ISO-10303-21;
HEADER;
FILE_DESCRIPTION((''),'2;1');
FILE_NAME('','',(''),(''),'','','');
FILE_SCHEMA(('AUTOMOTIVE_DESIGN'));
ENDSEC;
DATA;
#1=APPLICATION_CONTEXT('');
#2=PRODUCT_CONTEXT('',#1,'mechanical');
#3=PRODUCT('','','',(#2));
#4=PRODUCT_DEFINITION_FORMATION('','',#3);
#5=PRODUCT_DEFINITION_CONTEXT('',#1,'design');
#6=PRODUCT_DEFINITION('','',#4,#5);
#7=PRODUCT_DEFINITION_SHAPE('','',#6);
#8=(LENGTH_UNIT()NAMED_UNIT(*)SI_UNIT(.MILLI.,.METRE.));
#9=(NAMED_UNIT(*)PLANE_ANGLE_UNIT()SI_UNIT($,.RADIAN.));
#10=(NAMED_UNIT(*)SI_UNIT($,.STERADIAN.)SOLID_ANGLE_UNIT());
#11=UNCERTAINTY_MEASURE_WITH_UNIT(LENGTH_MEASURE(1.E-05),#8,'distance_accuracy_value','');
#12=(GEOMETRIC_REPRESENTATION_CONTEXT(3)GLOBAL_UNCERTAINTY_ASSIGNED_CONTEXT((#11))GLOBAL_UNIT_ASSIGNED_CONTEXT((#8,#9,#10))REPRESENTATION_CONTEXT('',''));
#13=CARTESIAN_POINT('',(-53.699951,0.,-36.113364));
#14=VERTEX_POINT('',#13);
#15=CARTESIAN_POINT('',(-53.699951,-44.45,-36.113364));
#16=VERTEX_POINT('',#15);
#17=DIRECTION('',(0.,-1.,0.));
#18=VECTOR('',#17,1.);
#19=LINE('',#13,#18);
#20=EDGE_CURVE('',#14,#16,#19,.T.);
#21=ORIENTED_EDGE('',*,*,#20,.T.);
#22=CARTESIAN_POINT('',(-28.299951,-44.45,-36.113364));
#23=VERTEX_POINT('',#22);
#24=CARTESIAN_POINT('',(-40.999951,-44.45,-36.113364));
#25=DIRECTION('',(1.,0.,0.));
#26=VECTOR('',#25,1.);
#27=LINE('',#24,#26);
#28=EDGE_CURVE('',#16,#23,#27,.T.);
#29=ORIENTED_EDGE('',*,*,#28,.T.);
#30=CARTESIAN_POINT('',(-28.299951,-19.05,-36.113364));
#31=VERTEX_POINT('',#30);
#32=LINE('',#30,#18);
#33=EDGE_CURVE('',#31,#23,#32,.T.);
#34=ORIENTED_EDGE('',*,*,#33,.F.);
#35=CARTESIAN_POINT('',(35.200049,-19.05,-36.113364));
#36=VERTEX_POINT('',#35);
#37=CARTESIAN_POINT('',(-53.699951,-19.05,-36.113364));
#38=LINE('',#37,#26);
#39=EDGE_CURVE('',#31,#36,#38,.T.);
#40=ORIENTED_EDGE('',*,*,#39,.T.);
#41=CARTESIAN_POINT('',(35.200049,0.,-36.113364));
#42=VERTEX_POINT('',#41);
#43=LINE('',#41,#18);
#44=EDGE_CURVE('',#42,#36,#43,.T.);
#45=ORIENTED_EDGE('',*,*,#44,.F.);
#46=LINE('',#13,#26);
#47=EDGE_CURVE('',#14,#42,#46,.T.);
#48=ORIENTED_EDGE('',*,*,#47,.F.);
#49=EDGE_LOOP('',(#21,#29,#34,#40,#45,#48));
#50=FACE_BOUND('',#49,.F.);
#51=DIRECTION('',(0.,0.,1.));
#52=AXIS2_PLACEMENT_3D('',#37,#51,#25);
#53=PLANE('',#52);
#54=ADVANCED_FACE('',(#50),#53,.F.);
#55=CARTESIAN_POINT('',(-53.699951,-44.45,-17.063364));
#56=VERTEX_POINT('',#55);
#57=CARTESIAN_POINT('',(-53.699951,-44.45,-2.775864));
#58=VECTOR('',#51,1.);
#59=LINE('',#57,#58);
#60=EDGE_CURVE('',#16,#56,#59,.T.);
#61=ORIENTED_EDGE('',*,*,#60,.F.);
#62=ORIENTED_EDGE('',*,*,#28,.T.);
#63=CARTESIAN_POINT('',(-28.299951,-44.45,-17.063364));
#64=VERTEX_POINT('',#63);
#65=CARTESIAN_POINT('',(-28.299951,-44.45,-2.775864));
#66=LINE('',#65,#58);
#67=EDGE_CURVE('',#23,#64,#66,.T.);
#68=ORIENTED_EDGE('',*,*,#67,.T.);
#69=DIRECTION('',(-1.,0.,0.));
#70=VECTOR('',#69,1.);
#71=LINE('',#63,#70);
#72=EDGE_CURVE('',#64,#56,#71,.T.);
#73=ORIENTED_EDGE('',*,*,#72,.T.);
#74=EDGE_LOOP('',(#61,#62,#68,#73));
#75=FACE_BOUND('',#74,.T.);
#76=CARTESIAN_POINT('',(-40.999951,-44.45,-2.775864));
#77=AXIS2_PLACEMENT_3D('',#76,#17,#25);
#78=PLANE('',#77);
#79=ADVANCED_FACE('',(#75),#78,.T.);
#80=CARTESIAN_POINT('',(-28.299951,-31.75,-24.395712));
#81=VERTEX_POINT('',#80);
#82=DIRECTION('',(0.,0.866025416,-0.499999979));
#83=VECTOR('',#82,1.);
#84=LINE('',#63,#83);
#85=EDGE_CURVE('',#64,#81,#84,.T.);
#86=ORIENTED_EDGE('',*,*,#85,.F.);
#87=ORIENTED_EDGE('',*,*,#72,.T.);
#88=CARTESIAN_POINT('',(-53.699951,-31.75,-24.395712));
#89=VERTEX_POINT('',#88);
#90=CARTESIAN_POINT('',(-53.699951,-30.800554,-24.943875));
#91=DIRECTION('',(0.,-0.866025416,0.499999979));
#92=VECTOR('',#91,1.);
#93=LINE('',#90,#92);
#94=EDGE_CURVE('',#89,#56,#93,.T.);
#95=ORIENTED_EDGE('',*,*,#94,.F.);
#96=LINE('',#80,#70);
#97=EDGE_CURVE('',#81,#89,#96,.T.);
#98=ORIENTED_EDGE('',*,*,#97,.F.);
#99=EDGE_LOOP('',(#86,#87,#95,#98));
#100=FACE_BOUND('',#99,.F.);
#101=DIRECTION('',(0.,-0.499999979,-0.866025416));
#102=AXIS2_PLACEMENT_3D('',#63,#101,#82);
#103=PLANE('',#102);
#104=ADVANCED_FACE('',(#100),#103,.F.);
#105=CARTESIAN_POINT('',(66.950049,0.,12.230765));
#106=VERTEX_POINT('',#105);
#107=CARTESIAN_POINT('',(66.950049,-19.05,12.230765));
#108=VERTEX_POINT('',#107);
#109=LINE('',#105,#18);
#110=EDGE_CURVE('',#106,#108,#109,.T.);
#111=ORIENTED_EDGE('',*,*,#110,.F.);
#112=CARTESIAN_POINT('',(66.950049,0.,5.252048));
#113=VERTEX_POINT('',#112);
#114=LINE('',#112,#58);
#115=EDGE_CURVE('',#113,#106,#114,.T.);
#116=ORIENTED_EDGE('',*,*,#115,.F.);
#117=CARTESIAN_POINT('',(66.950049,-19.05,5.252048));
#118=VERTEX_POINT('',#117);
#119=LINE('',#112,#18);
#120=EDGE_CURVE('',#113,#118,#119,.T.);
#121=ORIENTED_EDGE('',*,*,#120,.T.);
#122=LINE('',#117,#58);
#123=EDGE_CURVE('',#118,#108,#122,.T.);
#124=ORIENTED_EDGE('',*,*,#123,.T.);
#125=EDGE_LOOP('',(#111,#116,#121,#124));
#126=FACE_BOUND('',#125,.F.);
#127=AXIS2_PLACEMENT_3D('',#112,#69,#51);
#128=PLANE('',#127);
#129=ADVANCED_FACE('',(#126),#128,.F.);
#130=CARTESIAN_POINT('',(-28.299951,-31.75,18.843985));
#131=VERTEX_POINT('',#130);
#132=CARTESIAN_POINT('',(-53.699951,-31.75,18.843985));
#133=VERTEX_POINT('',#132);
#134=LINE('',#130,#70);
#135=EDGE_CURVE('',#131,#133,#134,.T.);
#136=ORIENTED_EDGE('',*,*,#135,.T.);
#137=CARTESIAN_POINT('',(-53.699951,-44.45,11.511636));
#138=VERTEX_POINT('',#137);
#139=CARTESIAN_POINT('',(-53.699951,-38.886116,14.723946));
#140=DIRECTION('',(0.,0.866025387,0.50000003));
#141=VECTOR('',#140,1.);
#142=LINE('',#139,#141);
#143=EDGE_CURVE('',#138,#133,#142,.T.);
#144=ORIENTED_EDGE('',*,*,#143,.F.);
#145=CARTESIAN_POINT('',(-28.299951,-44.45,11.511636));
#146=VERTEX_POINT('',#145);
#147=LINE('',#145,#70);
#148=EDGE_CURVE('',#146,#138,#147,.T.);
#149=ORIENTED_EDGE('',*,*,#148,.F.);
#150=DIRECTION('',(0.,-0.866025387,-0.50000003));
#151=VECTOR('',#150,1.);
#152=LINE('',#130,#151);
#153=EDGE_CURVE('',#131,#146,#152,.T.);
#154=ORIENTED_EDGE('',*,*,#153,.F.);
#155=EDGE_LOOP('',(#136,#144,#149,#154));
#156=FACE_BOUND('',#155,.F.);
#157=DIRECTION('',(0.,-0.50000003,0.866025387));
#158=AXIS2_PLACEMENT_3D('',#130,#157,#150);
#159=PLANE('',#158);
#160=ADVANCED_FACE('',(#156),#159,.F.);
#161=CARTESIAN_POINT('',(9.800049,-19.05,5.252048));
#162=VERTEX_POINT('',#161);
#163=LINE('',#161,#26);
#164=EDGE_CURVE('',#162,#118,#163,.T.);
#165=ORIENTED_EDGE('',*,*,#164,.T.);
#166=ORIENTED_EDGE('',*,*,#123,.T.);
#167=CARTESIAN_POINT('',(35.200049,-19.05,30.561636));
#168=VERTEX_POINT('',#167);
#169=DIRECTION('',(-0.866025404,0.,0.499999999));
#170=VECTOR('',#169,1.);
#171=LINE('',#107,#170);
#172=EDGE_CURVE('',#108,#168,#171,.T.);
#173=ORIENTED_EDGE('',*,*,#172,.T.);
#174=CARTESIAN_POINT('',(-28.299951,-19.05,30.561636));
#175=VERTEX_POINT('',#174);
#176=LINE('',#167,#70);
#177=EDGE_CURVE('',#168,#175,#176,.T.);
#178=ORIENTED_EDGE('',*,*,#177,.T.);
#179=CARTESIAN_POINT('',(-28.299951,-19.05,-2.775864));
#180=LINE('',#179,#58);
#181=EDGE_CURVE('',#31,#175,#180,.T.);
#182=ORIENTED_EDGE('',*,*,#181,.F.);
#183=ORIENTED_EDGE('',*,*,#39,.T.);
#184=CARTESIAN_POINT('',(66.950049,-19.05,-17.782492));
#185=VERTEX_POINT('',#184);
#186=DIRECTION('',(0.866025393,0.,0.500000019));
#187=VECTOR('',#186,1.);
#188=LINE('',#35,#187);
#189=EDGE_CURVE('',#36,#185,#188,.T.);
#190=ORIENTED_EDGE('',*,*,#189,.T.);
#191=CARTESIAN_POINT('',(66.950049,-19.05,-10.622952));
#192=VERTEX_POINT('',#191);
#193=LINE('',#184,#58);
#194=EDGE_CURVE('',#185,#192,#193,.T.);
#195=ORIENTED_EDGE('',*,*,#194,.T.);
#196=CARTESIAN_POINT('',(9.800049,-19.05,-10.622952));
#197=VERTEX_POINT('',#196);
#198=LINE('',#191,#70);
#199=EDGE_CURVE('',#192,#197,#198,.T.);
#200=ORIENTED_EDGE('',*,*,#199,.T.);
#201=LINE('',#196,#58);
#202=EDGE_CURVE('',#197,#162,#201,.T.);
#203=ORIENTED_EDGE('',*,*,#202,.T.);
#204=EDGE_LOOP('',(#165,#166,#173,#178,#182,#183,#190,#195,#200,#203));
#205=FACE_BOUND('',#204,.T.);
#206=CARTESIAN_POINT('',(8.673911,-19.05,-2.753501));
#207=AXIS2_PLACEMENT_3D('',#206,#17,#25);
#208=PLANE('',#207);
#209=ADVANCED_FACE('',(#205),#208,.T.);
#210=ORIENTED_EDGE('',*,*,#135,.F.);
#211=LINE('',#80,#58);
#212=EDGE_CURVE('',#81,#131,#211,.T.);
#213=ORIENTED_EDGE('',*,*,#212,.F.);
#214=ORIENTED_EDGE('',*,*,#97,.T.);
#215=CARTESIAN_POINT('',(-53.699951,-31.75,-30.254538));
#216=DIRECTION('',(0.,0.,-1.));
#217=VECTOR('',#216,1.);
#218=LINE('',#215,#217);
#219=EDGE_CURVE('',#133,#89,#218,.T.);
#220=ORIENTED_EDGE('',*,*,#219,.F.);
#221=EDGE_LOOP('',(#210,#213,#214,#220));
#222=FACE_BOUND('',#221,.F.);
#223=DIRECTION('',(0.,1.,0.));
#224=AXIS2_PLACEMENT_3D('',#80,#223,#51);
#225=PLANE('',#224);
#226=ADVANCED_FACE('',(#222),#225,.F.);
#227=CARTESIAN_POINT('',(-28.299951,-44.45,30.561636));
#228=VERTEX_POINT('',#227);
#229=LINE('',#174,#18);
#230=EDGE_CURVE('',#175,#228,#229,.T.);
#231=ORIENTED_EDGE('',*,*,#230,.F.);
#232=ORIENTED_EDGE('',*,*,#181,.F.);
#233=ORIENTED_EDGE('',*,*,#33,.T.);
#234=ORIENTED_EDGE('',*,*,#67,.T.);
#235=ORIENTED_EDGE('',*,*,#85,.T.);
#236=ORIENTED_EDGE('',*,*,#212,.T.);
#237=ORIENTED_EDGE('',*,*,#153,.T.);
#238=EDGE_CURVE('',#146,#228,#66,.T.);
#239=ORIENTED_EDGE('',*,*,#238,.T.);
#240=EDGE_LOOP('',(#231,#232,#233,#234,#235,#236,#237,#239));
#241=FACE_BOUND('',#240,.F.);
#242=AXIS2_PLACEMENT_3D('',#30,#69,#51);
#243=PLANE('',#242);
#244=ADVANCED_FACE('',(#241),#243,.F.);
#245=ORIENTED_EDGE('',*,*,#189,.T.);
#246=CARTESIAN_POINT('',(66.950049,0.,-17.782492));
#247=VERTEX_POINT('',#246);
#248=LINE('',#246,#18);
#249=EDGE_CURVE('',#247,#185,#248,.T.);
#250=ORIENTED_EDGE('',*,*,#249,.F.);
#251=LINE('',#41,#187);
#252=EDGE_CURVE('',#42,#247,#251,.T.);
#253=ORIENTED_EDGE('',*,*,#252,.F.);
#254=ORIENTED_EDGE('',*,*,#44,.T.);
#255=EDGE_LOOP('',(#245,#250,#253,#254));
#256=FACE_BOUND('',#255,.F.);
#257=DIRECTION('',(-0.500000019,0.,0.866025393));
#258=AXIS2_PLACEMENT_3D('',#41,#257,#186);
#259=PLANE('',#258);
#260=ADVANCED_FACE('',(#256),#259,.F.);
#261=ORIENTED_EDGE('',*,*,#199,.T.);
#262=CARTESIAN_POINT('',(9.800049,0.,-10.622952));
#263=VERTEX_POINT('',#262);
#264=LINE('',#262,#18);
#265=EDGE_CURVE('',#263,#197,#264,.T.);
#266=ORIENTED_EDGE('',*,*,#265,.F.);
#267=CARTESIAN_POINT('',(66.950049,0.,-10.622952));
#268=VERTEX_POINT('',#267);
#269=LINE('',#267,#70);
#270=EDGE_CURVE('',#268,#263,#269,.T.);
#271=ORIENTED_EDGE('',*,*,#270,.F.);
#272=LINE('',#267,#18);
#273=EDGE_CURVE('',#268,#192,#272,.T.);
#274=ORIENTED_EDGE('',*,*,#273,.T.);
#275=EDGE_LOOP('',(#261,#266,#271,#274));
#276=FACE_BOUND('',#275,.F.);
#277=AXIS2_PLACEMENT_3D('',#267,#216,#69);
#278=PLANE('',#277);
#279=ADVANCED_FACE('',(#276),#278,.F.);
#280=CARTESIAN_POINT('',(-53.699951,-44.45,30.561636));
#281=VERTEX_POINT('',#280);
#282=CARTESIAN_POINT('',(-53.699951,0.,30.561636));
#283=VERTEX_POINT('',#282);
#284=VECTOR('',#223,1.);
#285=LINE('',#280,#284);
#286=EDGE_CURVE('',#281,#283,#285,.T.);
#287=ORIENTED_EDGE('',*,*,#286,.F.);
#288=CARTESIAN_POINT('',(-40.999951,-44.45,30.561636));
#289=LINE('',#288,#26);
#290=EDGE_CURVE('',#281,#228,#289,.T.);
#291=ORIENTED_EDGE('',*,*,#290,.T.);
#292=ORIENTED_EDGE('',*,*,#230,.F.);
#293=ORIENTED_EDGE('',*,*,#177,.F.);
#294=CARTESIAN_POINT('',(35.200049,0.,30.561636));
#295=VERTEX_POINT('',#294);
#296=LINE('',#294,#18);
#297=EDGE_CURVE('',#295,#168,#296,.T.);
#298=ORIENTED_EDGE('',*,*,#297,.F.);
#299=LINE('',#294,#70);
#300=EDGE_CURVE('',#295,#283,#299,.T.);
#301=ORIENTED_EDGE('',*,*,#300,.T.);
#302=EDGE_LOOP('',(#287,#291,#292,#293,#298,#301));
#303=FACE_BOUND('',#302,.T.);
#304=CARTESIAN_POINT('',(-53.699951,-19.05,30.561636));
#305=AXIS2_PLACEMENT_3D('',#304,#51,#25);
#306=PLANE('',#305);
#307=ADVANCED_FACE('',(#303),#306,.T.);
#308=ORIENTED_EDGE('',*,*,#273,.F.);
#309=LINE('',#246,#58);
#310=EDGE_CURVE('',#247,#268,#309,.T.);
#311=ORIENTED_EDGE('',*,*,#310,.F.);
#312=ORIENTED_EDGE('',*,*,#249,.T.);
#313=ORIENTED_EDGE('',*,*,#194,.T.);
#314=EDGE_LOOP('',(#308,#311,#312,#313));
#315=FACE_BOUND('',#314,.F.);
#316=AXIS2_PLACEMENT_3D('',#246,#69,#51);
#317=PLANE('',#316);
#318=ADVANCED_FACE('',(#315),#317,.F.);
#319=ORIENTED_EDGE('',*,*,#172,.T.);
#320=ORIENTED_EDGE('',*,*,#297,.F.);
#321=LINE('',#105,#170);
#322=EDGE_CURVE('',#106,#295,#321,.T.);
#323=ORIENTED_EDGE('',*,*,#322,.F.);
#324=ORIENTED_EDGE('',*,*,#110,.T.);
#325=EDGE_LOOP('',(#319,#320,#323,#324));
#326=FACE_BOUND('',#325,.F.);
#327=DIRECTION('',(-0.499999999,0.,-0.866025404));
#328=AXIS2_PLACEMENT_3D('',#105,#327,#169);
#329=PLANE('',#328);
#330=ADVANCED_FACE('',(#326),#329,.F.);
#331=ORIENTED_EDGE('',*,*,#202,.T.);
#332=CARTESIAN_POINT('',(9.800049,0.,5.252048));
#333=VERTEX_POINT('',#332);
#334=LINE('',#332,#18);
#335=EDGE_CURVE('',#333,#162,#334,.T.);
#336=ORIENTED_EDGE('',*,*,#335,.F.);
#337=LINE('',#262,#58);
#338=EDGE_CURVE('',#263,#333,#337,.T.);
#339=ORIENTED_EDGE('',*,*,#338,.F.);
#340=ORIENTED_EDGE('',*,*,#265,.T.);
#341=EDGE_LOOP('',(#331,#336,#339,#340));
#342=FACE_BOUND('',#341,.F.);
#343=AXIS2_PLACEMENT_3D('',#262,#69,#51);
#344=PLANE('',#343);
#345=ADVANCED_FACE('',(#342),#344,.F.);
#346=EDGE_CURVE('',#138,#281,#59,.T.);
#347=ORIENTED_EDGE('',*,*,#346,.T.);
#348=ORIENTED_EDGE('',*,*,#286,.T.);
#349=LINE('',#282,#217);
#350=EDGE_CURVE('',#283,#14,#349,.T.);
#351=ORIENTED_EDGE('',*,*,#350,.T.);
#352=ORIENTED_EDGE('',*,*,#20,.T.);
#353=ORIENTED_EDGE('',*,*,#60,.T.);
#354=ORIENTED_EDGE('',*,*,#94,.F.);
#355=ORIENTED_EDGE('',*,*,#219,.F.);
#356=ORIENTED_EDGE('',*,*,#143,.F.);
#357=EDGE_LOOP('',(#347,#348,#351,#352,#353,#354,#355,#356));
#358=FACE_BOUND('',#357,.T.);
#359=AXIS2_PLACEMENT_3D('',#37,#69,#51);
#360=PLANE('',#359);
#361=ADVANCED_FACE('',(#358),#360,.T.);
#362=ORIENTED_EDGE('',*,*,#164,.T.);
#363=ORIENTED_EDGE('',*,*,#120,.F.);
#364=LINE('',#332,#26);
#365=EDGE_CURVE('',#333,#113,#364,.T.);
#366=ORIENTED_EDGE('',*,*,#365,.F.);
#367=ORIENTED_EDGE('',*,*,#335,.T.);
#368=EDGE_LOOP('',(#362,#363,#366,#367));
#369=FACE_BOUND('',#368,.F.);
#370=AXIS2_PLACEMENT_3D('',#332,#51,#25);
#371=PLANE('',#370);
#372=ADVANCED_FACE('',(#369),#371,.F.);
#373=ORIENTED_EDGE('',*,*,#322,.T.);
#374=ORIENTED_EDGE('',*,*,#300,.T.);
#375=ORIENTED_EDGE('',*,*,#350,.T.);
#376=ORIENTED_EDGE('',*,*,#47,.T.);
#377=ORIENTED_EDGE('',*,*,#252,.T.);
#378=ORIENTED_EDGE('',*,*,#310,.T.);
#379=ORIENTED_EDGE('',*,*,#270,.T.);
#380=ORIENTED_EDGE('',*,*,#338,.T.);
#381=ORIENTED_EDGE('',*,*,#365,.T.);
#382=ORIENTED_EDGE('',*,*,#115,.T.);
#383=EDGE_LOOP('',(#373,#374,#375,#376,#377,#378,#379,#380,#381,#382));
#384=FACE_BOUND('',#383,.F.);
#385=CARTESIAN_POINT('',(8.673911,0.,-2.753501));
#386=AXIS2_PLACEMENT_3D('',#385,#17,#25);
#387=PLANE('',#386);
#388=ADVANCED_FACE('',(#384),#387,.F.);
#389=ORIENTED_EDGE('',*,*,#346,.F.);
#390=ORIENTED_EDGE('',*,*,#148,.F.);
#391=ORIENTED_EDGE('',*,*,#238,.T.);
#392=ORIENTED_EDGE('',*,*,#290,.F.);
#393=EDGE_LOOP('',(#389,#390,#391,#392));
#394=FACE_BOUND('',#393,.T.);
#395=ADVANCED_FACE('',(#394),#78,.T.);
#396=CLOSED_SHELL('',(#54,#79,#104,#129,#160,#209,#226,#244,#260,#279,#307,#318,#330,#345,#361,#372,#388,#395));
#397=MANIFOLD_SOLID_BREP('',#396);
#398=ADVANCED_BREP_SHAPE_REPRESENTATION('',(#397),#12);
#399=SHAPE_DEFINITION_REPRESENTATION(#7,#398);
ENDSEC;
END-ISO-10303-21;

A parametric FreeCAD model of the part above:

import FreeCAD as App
import Part
import Sketcher

V = App.Vector
Q = App.Units.Quantity


def add_polygon(sketch, points):
    """Adds a closed chain of lines whose ends are joined by coincident constraints."""
    first, n = sketch.GeometryCount, len(points)
    for a, b in zip(points, points[1:] + points[:1]):
        sketch.addGeometry(Part.LineSegment(App.Vector(*a, 0), App.Vector(*b, 0)), False)
    for i in range(n):
        sketch.addConstraint(Sketcher.Constraint("Coincident", first + i, 2, first + (i + 1) % n, 1))

doc = App.newDocument("Part")
params = doc.addObject("Spreadsheet::Sheet", "Params")
for row, (alias, value) in enumerate([
    ("sketch1_width", "3.5 in"),
    ("sketch1_width2", "2.25 in"),
    ("sketch1_height", "2.625 in"),
    ("sketch1_height2", "0.625 in"),
    ("pad1_length", "0.75 in"),
    ("sketch2_width", "1 in"),
    ("sketch2_height", "2.625 in"),
    ("pad2_length", "1 in"),
    ("sketch3_height", "1.125 in"),
], start=1):
    params.set(f"A{row}", alias)
    params.set(f"B{row}", "=" + value)
    params.setAlias(f"B{row}", alias)

body = doc.addObject("PartDesign::Body", "Body")

sketch1 = body.newObject("Sketcher::SketchObject", "Sketch")
sketch1.AttachmentSupport = (doc.getObject("XZ_Plane"), [""])
sketch1.MapMode = "FlatFace"
add_polygon(sketch1, [(35, 31), (-54, 31), (-54, -36), (35, -36), (67, -18), (67, -11), (10, -11), (10, 5), (67, 5), (67, 12)])
sketch1.addConstraint(Sketcher.Constraint("Horizontal", 0))
sketch1.addConstraint(Sketcher.Constraint("Vertical", 1))
sketch1.addConstraint(Sketcher.Constraint("Horizontal", 2))
sketch1.addConstraint(Sketcher.Constraint("Vertical", 4))
sketch1.addConstraint(Sketcher.Constraint("Horizontal", 5))
sketch1.addConstraint(Sketcher.Constraint("Vertical", 6))
sketch1.addConstraint(Sketcher.Constraint("Horizontal", 7))
sketch1.addConstraint(Sketcher.Constraint("Vertical", 8))
sketch1.addConstraint(Sketcher.Constraint("Vertical", 4, 2, 7, 2))
sketch1.addConstraint(Sketcher.Constraint("Vertical", 2, 2, 9, 2))
sketch1.addConstraint(Sketcher.Constraint("Equal", 3, 9))
sketch1.addConstraint(Sketcher.Constraint("DistanceX", 0, 2, 0, 1, Q("3.5 in")))
sketch1.addConstraint(Sketcher.Constraint("Angle", 3, Q("30.000001 deg")))
sketch1.addConstraint(Sketcher.Constraint("DistanceX", 5, 2, 2, 2, Q("1 in")))
sketch1.addConstraint(Sketcher.Constraint("DistanceX", 5, 2, 5, 1, Q("2.25 in")))
sketch1.addConstraint(Sketcher.Constraint("DistanceY", 1, 2, 1, 1, Q("2.625 in")))
sketch1.addConstraint(Sketcher.Constraint("DistanceY", 6, 1, 6, 2, Q("0.625 in")))
sketch1.addConstraint(Sketcher.Constraint("DistanceY", 4, 1, 4, 2, 7.15954))
sketch1.addConstraint(Sketcher.Constraint("DistanceX", 0, 2, -1, 1, 53.699951))
sketch1.addConstraint(Sketcher.Constraint("DistanceY", -1, 1, 6, 2, 5.252048))
sketch1.setExpression("Constraints[21]", "Params.sketch1_width")
sketch1.setExpression("Constraints[24]", "Params.sketch1_width2")
sketch1.setExpression("Constraints[25]", "Params.sketch1_height")
sketch1.setExpression("Constraints[26]", "Params.sketch1_height2")
pad1 = body.newObject("PartDesign::Pad", "Pad")
pad1.Profile = sketch1
pad1.setExpression("Length", "Params.pad1_length")

sketch2 = body.newObject("Sketcher::SketchObject", "Sketch001")
sketch2.AttachmentSupport = (doc.getObject("XZ_Plane"), [""])
sketch2.MapMode = "FlatFace"
sketch2.AttachmentOffset = App.Placement(V(0, 0, 0.75 * 25.4), App.Rotation())
add_polygon(sketch2, [(-54, 31), (-54, -36), (-28, -36), (-28, 31)])
sketch2.addConstraint(Sketcher.Constraint("Vertical", 0))
sketch2.addConstraint(Sketcher.Constraint("Horizontal", 1))
sketch2.addConstraint(Sketcher.Constraint("Vertical", 2))
sketch2.addConstraint(Sketcher.Constraint("Horizontal", 3))
sketch2.addConstraint(Sketcher.Constraint("DistanceX", 1, 1, 1, 2, Q("1 in")))
sketch2.addConstraint(Sketcher.Constraint("DistanceY", 0, 2, 0, 1, Q("2.625 in")))
sketch2.addConstraint(Sketcher.Constraint("DistanceX", 0, 2, -1, 1, 53.699951))
sketch2.addConstraint(Sketcher.Constraint("DistanceY", 0, 2, -1, 1, 36.113364))
sketch2.setExpression("Constraints[8]", "Params.sketch2_width")
sketch2.setExpression("Constraints[9]", "Params.sketch2_height")
pad2 = body.newObject("PartDesign::Pad", "Pad001")
pad2.Profile = sketch2
pad2.setExpression("Length", "Params.pad2_length")

sketch3 = body.newObject("Sketcher::SketchObject", "Sketch002")
sketch3.AttachmentSupport = (doc.getObject("YZ_Plane"), [""])
sketch3.MapMode = "FlatFace"
sketch3.AttachmentOffset = App.Placement(V(0, 0, -28.299951), App.Rotation())
add_polygon(sketch3, [(-32, 19), (-44, 12), (-44, -17), (-32, -24)])
sketch3.addConstraint(Sketcher.Constraint("Vertical", 1))
sketch3.addConstraint(Sketcher.Constraint("Vertical", 3))
sketch3.addConstraint(Sketcher.Constraint("Equal", 0, 2))
sketch3.addConstraint(Sketcher.Constraint("Angle", 0, Q("-149.999998 deg")))
sketch3.addConstraint(Sketcher.Constraint("DistanceX", 1, 2, 2, 2, Q("0.5 in")))
sketch3.addConstraint(Sketcher.Constraint("DistanceY", 1, 2, 1, 1, Q("1.125 in")))
sketch3.addConstraint(Sketcher.Constraint("DistanceX", 0, 2, -1, 1, Q("1.75 in")))
sketch3.addConstraint(Sketcher.Constraint("DistanceY", 2, 2, -1, 1, 24.395712))
sketch3.setExpression("Constraints[9]", "Params.sketch3_height")
pocket1 = body.newObject("PartDesign::Pocket", "Pocket")
pocket1.Profile = sketch3
pocket1.Type = "ThroughAll"

doc.recompute()
